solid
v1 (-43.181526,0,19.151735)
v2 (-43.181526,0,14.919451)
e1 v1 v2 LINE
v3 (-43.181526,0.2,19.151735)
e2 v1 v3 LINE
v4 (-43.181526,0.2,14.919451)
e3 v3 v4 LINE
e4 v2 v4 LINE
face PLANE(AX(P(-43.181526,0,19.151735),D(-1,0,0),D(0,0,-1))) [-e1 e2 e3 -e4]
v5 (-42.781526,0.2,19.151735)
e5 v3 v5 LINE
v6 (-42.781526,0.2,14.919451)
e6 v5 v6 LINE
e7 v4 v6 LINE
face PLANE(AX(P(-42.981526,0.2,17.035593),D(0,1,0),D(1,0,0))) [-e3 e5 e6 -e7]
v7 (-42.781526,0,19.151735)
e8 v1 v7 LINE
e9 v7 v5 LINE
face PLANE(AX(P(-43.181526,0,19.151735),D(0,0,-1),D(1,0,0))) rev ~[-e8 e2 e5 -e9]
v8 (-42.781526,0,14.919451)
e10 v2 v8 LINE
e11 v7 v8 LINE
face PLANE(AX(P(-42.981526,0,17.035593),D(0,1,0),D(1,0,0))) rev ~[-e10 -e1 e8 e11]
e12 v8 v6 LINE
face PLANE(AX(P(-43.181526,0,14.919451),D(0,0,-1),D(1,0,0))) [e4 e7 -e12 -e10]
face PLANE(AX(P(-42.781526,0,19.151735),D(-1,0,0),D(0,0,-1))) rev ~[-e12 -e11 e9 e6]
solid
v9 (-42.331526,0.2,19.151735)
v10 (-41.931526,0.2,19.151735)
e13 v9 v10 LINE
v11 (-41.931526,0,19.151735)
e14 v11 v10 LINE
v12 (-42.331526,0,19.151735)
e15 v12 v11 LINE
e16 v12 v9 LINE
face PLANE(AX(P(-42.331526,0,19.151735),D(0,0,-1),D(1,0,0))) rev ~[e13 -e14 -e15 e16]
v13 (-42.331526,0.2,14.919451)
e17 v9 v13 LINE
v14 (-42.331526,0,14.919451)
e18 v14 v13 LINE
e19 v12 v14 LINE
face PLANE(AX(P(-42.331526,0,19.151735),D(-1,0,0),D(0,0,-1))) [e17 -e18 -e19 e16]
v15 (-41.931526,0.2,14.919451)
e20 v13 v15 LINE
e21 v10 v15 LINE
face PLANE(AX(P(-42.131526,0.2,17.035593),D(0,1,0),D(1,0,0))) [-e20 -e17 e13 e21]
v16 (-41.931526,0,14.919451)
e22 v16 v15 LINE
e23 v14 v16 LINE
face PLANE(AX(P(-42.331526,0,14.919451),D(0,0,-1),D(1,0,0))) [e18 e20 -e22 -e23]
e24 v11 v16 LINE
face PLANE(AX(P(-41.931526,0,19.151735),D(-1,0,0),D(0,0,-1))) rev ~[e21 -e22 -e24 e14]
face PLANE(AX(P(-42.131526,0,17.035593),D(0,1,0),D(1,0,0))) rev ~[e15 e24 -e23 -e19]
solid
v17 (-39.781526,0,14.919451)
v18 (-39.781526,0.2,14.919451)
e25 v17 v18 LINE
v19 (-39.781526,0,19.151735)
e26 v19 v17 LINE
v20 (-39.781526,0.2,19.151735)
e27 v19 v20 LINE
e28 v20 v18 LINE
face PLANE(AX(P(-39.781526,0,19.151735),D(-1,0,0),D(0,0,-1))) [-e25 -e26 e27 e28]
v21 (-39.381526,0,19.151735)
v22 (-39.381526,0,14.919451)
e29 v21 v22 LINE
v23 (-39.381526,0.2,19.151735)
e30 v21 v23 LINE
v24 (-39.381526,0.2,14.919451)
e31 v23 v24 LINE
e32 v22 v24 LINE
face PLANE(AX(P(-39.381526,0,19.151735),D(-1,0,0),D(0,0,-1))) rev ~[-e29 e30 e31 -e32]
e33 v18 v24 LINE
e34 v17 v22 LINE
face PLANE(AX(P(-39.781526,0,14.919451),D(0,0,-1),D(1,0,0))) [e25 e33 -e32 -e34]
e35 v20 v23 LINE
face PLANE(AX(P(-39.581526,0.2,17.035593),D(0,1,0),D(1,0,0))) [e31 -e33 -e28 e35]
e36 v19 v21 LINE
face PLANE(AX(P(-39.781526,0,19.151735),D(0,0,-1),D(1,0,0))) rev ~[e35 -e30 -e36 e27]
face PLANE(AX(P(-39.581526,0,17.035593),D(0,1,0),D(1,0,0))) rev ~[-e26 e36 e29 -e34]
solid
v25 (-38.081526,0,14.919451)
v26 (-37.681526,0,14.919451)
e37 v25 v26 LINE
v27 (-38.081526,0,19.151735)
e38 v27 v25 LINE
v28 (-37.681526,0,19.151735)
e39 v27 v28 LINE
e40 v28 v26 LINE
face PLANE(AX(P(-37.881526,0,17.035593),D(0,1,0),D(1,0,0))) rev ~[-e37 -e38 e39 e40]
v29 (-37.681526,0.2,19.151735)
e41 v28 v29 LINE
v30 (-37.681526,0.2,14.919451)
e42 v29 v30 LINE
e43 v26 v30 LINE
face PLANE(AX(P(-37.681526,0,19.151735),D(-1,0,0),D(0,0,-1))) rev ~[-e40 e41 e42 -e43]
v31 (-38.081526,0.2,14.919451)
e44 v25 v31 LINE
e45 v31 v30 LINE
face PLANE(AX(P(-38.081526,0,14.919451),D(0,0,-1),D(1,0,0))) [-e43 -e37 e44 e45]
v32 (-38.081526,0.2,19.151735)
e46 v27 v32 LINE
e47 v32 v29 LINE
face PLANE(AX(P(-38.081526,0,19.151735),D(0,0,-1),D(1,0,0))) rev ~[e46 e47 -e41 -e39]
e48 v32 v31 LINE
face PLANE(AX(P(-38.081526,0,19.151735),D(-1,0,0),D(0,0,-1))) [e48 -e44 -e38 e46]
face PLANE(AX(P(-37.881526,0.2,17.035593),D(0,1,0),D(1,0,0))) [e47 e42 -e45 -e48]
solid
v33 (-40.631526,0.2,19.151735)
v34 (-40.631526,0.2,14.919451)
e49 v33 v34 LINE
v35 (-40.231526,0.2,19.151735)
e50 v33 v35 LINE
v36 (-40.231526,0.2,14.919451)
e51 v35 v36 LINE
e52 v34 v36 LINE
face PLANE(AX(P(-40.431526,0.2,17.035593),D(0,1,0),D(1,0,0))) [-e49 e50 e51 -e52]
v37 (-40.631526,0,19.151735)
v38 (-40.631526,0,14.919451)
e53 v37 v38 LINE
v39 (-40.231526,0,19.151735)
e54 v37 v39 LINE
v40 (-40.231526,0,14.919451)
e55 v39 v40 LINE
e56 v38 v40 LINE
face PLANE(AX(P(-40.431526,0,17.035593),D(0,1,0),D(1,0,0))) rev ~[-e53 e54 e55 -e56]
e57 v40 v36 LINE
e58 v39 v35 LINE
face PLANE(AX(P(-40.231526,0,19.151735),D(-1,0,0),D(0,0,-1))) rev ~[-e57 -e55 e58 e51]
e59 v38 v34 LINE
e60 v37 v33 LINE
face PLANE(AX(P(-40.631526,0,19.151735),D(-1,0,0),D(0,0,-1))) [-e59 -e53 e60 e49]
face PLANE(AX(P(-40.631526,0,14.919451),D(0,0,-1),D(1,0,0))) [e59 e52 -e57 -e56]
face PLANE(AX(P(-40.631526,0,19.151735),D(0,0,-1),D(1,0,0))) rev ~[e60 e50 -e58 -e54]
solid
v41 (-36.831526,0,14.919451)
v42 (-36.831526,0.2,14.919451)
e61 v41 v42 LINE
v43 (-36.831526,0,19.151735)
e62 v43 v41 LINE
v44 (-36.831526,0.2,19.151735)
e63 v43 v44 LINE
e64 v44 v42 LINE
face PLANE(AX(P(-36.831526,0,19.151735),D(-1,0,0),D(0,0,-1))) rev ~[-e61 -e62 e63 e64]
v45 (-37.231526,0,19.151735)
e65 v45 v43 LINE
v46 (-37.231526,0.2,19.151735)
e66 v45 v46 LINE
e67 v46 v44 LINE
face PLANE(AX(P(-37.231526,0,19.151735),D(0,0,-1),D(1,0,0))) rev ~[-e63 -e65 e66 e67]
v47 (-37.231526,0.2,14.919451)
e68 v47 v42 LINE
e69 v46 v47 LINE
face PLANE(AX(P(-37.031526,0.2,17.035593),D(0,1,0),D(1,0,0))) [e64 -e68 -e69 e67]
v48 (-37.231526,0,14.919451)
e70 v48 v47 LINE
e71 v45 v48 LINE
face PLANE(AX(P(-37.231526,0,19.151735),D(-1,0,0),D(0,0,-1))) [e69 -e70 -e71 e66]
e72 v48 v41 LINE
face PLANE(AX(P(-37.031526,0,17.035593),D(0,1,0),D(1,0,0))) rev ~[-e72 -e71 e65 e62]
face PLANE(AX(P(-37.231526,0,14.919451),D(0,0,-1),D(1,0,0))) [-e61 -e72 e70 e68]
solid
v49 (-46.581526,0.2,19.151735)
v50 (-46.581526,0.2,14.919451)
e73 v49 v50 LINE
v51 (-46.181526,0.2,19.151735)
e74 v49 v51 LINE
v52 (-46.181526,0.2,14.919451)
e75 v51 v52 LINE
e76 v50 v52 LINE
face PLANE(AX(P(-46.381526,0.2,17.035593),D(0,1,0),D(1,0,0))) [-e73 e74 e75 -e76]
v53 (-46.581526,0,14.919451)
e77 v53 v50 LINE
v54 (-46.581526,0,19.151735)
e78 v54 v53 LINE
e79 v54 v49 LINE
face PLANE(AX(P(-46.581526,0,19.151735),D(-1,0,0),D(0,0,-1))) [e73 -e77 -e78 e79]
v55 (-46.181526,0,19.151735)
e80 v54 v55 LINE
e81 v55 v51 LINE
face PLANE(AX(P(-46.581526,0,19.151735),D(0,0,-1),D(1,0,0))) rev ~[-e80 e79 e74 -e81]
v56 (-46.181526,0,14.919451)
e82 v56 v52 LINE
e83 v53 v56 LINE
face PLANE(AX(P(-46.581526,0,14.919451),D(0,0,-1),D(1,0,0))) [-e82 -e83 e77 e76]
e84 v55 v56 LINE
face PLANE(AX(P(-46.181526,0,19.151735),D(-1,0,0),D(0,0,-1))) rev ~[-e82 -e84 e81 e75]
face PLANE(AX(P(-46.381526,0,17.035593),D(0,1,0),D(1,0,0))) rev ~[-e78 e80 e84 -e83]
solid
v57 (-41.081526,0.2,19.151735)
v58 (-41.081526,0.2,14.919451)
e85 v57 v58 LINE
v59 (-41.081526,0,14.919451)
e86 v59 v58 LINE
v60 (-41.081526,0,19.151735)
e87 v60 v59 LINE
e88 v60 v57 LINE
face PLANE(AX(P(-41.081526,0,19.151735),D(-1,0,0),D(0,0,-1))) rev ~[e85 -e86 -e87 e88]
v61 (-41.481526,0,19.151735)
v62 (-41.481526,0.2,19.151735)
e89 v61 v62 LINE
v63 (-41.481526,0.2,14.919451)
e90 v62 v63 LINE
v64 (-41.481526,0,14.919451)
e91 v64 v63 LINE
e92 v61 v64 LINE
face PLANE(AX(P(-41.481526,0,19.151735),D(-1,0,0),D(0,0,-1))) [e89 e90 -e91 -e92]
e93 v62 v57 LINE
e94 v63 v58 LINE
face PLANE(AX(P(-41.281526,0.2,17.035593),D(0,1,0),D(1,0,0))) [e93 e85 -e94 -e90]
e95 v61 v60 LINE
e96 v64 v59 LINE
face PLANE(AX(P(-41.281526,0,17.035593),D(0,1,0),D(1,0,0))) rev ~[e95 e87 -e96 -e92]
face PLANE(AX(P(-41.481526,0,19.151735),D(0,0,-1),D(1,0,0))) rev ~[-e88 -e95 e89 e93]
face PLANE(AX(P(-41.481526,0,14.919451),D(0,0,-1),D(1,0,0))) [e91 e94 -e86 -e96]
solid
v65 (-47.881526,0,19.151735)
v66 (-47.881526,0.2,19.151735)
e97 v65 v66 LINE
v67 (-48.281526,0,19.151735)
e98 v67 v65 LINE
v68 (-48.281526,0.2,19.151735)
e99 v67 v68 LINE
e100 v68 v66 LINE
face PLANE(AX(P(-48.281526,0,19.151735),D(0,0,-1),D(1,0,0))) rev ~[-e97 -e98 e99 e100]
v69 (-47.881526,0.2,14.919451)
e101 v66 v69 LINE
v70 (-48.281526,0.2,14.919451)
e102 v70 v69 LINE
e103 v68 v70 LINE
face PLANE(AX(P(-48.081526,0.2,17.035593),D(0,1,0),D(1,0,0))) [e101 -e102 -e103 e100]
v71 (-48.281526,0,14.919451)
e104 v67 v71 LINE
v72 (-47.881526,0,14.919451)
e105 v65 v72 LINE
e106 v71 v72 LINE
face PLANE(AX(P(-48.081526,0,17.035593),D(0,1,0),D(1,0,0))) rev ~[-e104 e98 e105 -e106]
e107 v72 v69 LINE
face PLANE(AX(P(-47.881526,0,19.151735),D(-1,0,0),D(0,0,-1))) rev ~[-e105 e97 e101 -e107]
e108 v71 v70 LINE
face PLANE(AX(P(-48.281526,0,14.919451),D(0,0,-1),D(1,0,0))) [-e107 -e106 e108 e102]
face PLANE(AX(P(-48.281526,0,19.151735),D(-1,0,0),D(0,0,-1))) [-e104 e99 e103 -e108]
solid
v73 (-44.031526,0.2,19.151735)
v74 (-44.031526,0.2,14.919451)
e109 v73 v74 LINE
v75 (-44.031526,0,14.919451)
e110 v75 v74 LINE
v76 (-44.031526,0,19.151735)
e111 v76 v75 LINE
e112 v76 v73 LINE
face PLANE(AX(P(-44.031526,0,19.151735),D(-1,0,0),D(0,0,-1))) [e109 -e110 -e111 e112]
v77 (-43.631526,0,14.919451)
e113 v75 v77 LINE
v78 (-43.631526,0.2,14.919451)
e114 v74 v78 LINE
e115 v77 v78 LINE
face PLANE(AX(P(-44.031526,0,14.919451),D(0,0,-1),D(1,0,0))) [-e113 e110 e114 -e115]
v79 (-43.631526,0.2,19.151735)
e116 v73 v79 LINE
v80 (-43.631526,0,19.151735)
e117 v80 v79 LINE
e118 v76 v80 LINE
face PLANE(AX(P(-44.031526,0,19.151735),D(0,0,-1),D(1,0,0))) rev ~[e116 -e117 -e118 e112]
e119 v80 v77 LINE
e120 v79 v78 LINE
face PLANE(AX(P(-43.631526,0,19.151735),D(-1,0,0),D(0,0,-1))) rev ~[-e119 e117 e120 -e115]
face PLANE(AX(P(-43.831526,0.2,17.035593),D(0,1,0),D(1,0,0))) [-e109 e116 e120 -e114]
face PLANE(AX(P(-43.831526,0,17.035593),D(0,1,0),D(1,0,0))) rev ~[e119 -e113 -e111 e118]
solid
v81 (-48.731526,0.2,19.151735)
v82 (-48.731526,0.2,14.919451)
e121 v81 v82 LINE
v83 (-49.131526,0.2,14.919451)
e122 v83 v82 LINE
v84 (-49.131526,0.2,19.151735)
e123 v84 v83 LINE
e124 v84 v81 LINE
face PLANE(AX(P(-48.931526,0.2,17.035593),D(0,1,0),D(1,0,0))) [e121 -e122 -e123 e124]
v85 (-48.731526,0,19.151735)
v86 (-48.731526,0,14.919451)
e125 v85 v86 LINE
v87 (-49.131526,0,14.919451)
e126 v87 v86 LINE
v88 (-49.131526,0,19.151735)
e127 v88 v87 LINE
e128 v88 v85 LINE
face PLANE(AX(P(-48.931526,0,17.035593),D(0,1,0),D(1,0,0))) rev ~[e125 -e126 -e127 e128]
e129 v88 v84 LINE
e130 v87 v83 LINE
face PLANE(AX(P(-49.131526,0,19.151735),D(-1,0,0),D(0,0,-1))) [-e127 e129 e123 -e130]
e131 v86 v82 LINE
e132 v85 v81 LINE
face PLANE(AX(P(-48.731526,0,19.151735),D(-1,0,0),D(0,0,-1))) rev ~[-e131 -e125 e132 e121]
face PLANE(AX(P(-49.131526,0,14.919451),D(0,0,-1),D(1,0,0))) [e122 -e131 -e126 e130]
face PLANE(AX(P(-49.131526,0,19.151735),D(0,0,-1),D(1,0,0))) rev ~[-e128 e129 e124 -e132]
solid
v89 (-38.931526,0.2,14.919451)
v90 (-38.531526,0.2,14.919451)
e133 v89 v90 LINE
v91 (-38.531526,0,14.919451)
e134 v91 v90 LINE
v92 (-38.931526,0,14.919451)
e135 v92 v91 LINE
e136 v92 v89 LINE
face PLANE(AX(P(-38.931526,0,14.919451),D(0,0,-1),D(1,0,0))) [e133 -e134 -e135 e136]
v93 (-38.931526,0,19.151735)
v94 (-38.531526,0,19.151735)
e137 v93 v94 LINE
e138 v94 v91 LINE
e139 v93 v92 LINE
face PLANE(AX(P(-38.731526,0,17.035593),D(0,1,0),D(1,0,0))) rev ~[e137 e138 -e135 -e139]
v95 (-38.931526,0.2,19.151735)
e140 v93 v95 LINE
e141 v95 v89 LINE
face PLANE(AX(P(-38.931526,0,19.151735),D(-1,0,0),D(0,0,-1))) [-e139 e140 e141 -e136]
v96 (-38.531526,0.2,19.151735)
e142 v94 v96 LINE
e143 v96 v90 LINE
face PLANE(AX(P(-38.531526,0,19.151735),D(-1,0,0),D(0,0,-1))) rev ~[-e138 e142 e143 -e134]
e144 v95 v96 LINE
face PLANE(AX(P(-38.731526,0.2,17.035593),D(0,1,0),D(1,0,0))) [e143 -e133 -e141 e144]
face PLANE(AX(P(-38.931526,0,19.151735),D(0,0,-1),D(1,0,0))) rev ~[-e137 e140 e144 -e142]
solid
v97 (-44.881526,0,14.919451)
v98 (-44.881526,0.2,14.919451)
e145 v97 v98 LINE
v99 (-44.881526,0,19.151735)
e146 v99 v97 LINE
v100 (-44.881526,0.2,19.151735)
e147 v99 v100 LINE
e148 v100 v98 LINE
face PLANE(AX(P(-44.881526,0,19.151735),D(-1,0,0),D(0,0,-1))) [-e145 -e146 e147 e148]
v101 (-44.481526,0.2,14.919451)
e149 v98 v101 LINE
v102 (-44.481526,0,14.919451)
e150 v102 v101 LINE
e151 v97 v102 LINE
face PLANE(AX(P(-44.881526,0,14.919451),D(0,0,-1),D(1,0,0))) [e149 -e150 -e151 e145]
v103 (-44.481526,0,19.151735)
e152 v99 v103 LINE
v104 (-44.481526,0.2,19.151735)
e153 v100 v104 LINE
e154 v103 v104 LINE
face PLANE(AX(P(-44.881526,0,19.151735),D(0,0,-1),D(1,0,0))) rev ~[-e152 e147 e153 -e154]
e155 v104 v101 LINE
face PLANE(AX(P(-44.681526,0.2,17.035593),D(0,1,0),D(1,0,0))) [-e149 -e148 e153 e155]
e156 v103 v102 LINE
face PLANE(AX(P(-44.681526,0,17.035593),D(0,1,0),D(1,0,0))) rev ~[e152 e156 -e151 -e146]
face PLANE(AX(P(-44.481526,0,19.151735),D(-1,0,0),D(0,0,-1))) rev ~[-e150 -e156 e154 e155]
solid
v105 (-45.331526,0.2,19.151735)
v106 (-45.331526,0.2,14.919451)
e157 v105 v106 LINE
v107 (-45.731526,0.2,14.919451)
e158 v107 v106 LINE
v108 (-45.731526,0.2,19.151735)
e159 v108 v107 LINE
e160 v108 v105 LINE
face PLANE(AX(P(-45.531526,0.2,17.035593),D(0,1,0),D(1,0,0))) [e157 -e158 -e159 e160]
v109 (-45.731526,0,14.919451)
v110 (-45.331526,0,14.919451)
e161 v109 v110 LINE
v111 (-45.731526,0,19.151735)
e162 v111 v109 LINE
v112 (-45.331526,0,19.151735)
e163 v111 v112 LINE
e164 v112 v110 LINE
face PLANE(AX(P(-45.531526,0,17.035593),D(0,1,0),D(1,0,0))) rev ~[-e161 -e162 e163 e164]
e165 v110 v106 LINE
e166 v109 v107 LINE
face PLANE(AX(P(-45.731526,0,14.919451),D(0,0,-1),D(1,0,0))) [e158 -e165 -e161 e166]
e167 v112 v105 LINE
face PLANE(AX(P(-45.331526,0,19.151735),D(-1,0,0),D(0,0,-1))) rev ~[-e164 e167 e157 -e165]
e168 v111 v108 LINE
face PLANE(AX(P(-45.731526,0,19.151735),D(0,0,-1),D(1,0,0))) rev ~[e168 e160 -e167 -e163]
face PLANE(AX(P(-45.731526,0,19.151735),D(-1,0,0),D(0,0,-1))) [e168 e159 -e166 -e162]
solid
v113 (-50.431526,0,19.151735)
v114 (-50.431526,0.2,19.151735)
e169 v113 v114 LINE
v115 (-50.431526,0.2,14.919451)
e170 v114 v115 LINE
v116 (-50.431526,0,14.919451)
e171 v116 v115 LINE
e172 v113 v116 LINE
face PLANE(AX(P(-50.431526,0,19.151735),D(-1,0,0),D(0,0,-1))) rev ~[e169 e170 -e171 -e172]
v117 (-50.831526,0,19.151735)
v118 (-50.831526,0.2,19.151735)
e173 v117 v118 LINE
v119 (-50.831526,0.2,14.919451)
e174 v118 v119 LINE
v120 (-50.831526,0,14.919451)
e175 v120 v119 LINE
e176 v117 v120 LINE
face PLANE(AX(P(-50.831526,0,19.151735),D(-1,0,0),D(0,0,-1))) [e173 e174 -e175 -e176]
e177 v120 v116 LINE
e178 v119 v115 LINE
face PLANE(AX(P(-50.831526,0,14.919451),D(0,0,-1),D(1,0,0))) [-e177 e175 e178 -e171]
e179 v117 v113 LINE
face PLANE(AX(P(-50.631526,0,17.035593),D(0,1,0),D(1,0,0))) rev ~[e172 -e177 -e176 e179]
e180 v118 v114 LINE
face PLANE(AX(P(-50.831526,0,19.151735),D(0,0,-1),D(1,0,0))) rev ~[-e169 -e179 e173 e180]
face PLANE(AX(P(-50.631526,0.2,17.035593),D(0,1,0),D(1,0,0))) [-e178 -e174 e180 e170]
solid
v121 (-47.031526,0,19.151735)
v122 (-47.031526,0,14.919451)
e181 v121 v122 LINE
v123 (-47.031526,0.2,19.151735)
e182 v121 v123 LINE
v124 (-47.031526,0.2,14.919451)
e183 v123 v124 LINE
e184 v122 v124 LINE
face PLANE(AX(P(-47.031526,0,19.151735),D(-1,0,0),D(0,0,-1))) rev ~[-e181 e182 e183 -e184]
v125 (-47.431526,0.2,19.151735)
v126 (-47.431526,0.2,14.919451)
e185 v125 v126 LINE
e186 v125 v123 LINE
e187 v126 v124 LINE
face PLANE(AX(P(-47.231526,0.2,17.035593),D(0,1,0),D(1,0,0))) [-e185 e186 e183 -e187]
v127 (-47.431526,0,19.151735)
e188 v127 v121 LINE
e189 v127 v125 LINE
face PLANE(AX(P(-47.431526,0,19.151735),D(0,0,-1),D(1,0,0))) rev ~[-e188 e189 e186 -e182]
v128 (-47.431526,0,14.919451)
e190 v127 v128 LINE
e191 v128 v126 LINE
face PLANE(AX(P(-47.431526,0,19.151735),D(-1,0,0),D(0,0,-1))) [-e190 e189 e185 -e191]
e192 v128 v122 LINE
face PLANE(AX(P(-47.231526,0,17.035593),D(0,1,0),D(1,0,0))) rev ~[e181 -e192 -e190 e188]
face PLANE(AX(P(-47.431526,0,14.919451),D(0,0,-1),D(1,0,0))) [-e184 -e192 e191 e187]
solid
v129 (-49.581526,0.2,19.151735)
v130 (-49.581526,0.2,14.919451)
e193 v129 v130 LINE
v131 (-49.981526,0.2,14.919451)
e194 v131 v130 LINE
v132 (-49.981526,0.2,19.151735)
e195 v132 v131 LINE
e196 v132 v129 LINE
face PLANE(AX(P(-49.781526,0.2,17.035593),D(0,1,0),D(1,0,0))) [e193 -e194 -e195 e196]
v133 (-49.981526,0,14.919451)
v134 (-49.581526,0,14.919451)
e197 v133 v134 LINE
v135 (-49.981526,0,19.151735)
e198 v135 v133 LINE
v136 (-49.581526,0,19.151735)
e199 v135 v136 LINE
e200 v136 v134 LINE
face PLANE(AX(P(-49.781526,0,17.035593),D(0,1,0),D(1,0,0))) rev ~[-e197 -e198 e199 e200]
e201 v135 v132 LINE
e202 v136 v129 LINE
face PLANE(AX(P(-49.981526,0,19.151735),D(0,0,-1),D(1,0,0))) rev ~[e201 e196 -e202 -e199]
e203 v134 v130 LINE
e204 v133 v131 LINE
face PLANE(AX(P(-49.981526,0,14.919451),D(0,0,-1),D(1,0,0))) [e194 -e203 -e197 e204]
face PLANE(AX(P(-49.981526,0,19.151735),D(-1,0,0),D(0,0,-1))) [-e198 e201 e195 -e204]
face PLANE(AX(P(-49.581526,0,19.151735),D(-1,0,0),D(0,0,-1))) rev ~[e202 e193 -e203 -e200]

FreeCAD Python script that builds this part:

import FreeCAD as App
import Part
import Sketcher
from FreeCAD import Vector
Q = App.Units.Quantity

doc = App.newDocument("Part")
body = doc.addObject("PartDesign::Body", "Body")

# Sketch on XZ plane
sketch1 = doc.addObject("Sketcher::SketchObject", "Sketch")
body.addObject(sketch1)
sketch1.AttachmentSupport = (doc.XZ_Plane, [""])
sketch1.MapMode = "FlatFace"
sketch1.addGeometry([
    Part.LineSegment(Vector(-49.98, 14.92, 0), Vector(-49.98, 19.15, 0)),
    Part.LineSegment(Vector(-49.98, 19.15, 0), Vector(-49.58, 19.15, 0)),
    Part.LineSegment(Vector(-49.58, 19.15, 0), Vector(-49.58, 14.92, 0)),
    Part.LineSegment(Vector(-49.58, 14.92, 0), Vector(-49.98, 14.92, 0)),
], False)
sketch1.addConstraint([
    Sketcher.Constraint("Coincident", 0, 2, 1, 1),
    Sketcher.Constraint("Coincident", 1, 2, 2, 1),
    Sketcher.Constraint("Coincident", 2, 2, 3, 1),
    Sketcher.Constraint("Coincident", 3, 2, 0, 1),
    Sketcher.Constraint("Vertical", 0),
    Sketcher.Constraint("Horizontal", 1),
    Sketcher.Constraint("Vertical", 2),
    Sketcher.Constraint("Horizontal", 3),
    Sketcher.Constraint("DistanceX", 1, 1, 1, 2, Q("0.4 mm")),
    Sketcher.Constraint("DistanceY", 0, 1, 0, 2, Q("4.232283 mm")),
    Sketcher.Constraint("DistanceY", -1, 1, 2, 2, Q("14.919451 mm")),
    Sketcher.Constraint("DistanceX", 0, 2, -1, 1, Q("49.981526 mm")),
])
pad1 = doc.addObject("PartDesign::Pad", "Pad")
body.addObject(pad1)
pad1.Profile = sketch1
pad1.Length = 0.2
pad1.Reversed = True
body2 = doc.addObject("PartDesign::Body", "Body001")

# Sketch on XZ plane
sketch2 = doc.addObject("Sketcher::SketchObject", "Sketch001")
body2.addObject(sketch2)
sketch2.AttachmentSupport = (doc.getObject("XZ_Plane001"), [""])
sketch2.MapMode = "FlatFace"
sketch2.addGeometry([
    Part.LineSegment(Vector(-50.83, 14.92, 0), Vector(-50.83, 19.15, 0)),
    Part.LineSegment(Vector(-50.83, 19.15, 0), Vector(-50.43, 19.15, 0)),
    Part.LineSegment(Vector(-50.43, 19.15, 0), Vector(-50.43, 14.92, 0)),
    Part.LineSegment(Vector(-50.43, 14.92, 0), Vector(-50.83, 14.92, 0)),
], False)
sketch2.addConstraint([
    Sketcher.Constraint("Coincident", 0, 2, 1, 1),
    Sketcher.Constraint("Coincident", 1, 2, 2, 1),
    Sketcher.Constraint("Coincident", 2, 2, 3, 1),
    Sketcher.Constraint("Coincident", 3, 2, 0, 1),
    Sketcher.Constraint("Vertical", 0),
    Sketcher.Constraint("Horizontal", 1),
    Sketcher.Constraint("Vertical", 2),
    Sketcher.Constraint("Horizontal", 3),
    Sketcher.Constraint("DistanceX", 1, 1, 1, 2, Q("0.4 mm")),
    Sketcher.Constraint("DistanceY", 0, 1, 0, 2, Q("4.232283 mm")),
    Sketcher.Constraint("DistanceY", -1, 1, 2, 2, Q("14.919451 mm")),
    Sketcher.Constraint("DistanceX", 0, 2, -1, 1, Q("50.831526 mm")),
])
pad2 = doc.addObject("PartDesign::Pad", "Pad001")
body2.addObject(pad2)
pad2.Profile = sketch2
pad2.Length = 0.2
pad2.Reversed = True
body3 = doc.addObject("PartDesign::Body", "Body002")

# Sketch on XZ plane
sketch3 = doc.addObject("Sketcher::SketchObject", "Sketch002")
body3.addObject(sketch3)
sketch3.AttachmentSupport = (doc.getObject("XZ_Plane002"), [""])
sketch3.MapMode = "FlatFace"
sketch3.addGeometry([
    Part.LineSegment(Vector(-49.13, 14.92, 0), Vector(-49.13, 19.15, 0)),
    Part.LineSegment(Vector(-49.13, 19.15, 0), Vector(-48.73, 19.15, 0)),
    Part.LineSegment(Vector(-48.73, 19.15, 0), Vector(-48.73, 14.92, 0)),
    Part.LineSegment(Vector(-48.73, 14.92, 0), Vector(-49.13, 14.92, 0)),
], False)
sketch3.addConstraint([
    Sketcher.Constraint("Coincident", 0, 2, 1, 1),
    Sketcher.Constraint("Coincident", 1, 2, 2, 1),
    Sketcher.Constraint("Coincident", 2, 2, 3, 1),
    Sketcher.Constraint("Coincident", 3, 2, 0, 1),
    Sketcher.Constraint("Vertical", 0),
    Sketcher.Constraint("Horizontal", 1),
    Sketcher.Constraint("Vertical", 2),
    Sketcher.Constraint("Horizontal", 3),
    Sketcher.Constraint("DistanceX", 1, 1, 1, 2, Q("0.4 mm")),
    Sketcher.Constraint("DistanceY", 0, 1, 0, 2, Q("4.232283 mm")),
    Sketcher.Constraint("DistanceY", -1, 1, 2, 2, Q("14.919451 mm")),
    Sketcher.Constraint("DistanceX", 0, 2, -1, 1, Q("49.131526 mm")),
])
pad3 = doc.addObject("PartDesign::Pad", "Pad002")
body3.addObject(pad3)
pad3.Profile = sketch3
pad3.Length = 0.2
pad3.Reversed = True
body4 = doc.addObject("PartDesign::Body", "Body003")

# Sketch on XZ plane
sketch4 = doc.addObject("Sketcher::SketchObject", "Sketch003")
body4.addObject(sketch4)
sketch4.AttachmentSupport = (doc.getObject("XZ_Plane003"), [""])
sketch4.MapMode = "FlatFace"
sketch4.addGeometry([
    Part.LineSegment(Vector(-48.28, 14.92, 0), Vector(-48.28, 19.15, 0)),
    Part.LineSegment(Vector(-48.28, 19.15, 0), Vector(-47.88, 19.15, 0)),
    Part.LineSegment(Vector(-47.88, 19.15, 0), Vector(-47.88, 14.92, 0)),
    Part.LineSegment(Vector(-47.88, 14.92, 0), Vector(-48.28, 14.92, 0)),
], False)
sketch4.addConstraint([
    Sketcher.Constraint("Coincident", 0, 2, 1, 1),
    Sketcher.Constraint("Coincident", 1, 2, 2, 1),
    Sketcher.Constraint("Coincident", 2, 2, 3, 1),
    Sketcher.Constraint("Coincident", 3, 2, 0, 1),
    Sketcher.Constraint("Vertical", 0),
    Sketcher.Constraint("Horizontal", 1),
    Sketcher.Constraint("Vertical", 2),
    Sketcher.Constraint("Horizontal", 3),
    Sketcher.Constraint("DistanceX", 1, 1, 1, 2, Q("0.4 mm")),
    Sketcher.Constraint("DistanceY", 0, 1, 0, 2, Q("4.232283 mm")),
    Sketcher.Constraint("DistanceY", -1, 1, 2, 2, Q("14.919451 mm")),
    Sketcher.Constraint("DistanceX", 0, 2, -1, 1, Q("48.281526 mm")),
])
pad4 = doc.addObject("PartDesign::Pad", "Pad003")
body4.addObject(pad4)
pad4.Profile = sketch4
pad4.Length = 0.2
pad4.Reversed = True
body5 = doc.addObject("PartDesign::Body", "Body004")

# Sketch on XZ plane
sketch5 = doc.addObject("Sketcher::SketchObject", "Sketch004")
body5.addObject(sketch5)
sketch5.AttachmentSupport = (doc.getObject("XZ_Plane004"), [""])
sketch5.MapMode = "FlatFace"
sketch5.addGeometry([
    Part.LineSegment(Vector(-47.43, 14.92, 0), Vector(-47.43, 19.15, 0)),
    Part.LineSegment(Vector(-47.43, 19.15, 0), Vector(-47.03, 19.15, 0)),
    Part.LineSegment(Vector(-47.03, 19.15, 0), Vector(-47.03, 14.92, 0)),
    Part.LineSegment(Vector(-47.03, 14.92, 0), Vector(-47.43, 14.92, 0)),
], False)
sketch5.addConstraint([
    Sketcher.Constraint("Coincident", 0, 2, 1, 1),
    Sketcher.Constraint("Coincident", 1, 2, 2, 1),
    Sketcher.Constraint("Coincident", 2, 2, 3, 1),
    Sketcher.Constraint("Coincident", 3, 2, 0, 1),
    Sketcher.Constraint("Vertical", 0),
    Sketcher.Constraint("Horizontal", 1),
    Sketcher.Constraint("Vertical", 2),
    Sketcher.Constraint("Horizontal", 3),
    Sketcher.Constraint("DistanceX", 1, 1, 1, 2, Q("0.4 mm")),
    Sketcher.Constraint("DistanceY", 0, 1, 0, 2, Q("4.232283 mm")),
    Sketcher.Constraint("DistanceY", -1, 1, 2, 2, Q("14.919451 mm")),
    Sketcher.Constraint("DistanceX", 0, 2, -1, 1, Q("47.431526 mm")),
])
pad5 = doc.addObject("PartDesign::Pad", "Pad004")
body5.addObject(pad5)
pad5.Profile = sketch5
pad5.Length = 0.2
pad5.Reversed = True
body6 = doc.addObject("PartDesign::Body", "Body005")

# Sketch on XZ plane
sketch6 = doc.addObject("Sketcher::SketchObject", "Sketch005")
body6.addObject(sketch6)
sketch6.AttachmentSupport = (doc.getObject("XZ_Plane005"), [""])
sketch6.MapMode = "FlatFace"
sketch6.addGeometry([
    Part.LineSegment(Vector(-46.58, 14.92, 0), Vector(-46.58, 19.15, 0)),
    Part.LineSegment(Vector(-46.58, 19.15, 0), Vector(-46.18, 19.15, 0)),
    Part.LineSegment(Vector(-46.18, 19.15, 0), Vector(-46.18, 14.92, 0)),
    Part.LineSegment(Vector(-46.18, 14.92, 0), Vector(-46.58, 14.92, 0)),
], False)
sketch6.addConstraint([
    Sketcher.Constraint("Coincident", 0, 2, 1, 1),
    Sketcher.Constraint("Coincident", 1, 2, 2, 1),
    Sketcher.Constraint("Coincident", 2, 2, 3, 1),
    Sketcher.Constraint("Coincident", 3, 2, 0, 1),
    Sketcher.Constraint("Vertical", 0),
    Sketcher.Constraint("Horizontal", 1),
    Sketcher.Constraint("Vertical", 2),
    Sketcher.Constraint("Horizontal", 3),
    Sketcher.Constraint("DistanceX", 1, 1, 1, 2, Q("0.4 mm")),
    Sketcher.Constraint("DistanceY", 0, 1, 0, 2, Q("4.232283 mm")),
    Sketcher.Constraint("DistanceY", -1, 1, 2, 2, Q("14.919451 mm")),
    Sketcher.Constraint("DistanceX", 0, 2, -1, 1, Q("46.581526 mm")),
])
pad6 = doc.addObject("PartDesign::Pad", "Pad005")
body6.addObject(pad6)
pad6.Profile = sketch6
pad6.Length = 0.2
pad6.Reversed = True
body7 = doc.addObject("PartDesign::Body", "Body006")

# Sketch on XZ plane
sketch7 = doc.addObject("Sketcher::SketchObject", "Sketch006")
body7.addObject(sketch7)
sketch7.AttachmentSupport = (doc.getObject("XZ_Plane006"), [""])
sketch7.MapMode = "FlatFace"
sketch7.addGeometry([
    Part.LineSegment(Vector(-45.73, 14.92, 0), Vector(-45.73, 19.15, 0)),
    Part.LineSegment(Vector(-45.73, 19.15, 0), Vector(-45.33, 19.15, 0)),
    Part.LineSegment(Vector(-45.33, 19.15, 0), Vector(-45.33, 14.92, 0)),
    Part.LineSegment(Vector(-45.33, 14.92, 0), Vector(-45.73, 14.92, 0)),
], False)
sketch7.addConstraint([
    Sketcher.Constraint("Coincident", 0, 2, 1, 1),
    Sketcher.Constraint("Coincident", 1, 2, 2, 1),
    Sketcher.Constraint("Coincident", 2, 2, 3, 1),
    Sketcher.Constraint("Coincident", 3, 2, 0, 1),
    Sketcher.Constraint("Vertical", 0),
    Sketcher.Constraint("Horizontal", 1),
    Sketcher.Constraint("Vertical", 2),
    Sketcher.Constraint("Horizontal", 3),
    Sketcher.Constraint("DistanceX", 1, 1, 1, 2, Q("0.4 mm")),
    Sketcher.Constraint("DistanceY", 0, 1, 0, 2, Q("4.232283 mm")),
    Sketcher.Constraint("DistanceY", -1, 1, 2, 2, Q("14.919451 mm")),
    Sketcher.Constraint("DistanceX", 0, 2, -1, 1, Q("45.731526 mm")),
])
pad7 = doc.addObject("PartDesign::Pad", "Pad006")
body7.addObject(pad7)
pad7.Profile = sketch7
pad7.Length = 0.2
pad7.Reversed = True
body8 = doc.addObject("PartDesign::Body", "Body007")

# Sketch on XZ plane
sketch8 = doc.addObject("Sketcher::SketchObject", "Sketch007")
body8.addObject(sketch8)
sketch8.AttachmentSupport = (doc.getObject("XZ_Plane007"), [""])
sketch8.MapMode = "FlatFace"
sketch8.addGeometry([
    Part.LineSegment(Vector(-44.88, 14.92, 0), Vector(-44.88, 19.15, 0)),
    Part.LineSegment(Vector(-44.88, 19.15, 0), Vector(-44.48, 19.15, 0)),
    Part.LineSegment(Vector(-44.48, 19.15, 0), Vector(-44.48, 14.92, 0)),
    Part.LineSegment(Vector(-44.48, 14.92, 0), Vector(-44.88, 14.92, 0)),
], False)
sketch8.addConstraint([
    Sketcher.Constraint("Coincident", 0, 2, 1, 1),
    Sketcher.Constraint("Coincident", 1, 2, 2, 1),
    Sketcher.Constraint("Coincident", 2, 2, 3, 1),
    Sketcher.Constraint("Coincident", 3, 2, 0, 1),
    Sketcher.Constraint("Vertical", 0),
    Sketcher.Constraint("Horizontal", 1),
    Sketcher.Constraint("Vertical", 2),
    Sketcher.Constraint("Horizontal", 3),
    Sketcher.Constraint("DistanceX", 1, 1, 1, 2, Q("0.4 mm")),
    Sketcher.Constraint("DistanceY", 0, 1, 0, 2, Q("4.232283 mm")),
    Sketcher.Constraint("DistanceY", -1, 1, 2, 2, Q("14.919451 mm")),
    Sketcher.Constraint("DistanceX", 0, 2, -1, 1, Q("44.881526 mm")),
])
pad8 = doc.addObject("PartDesign::Pad", "Pad007")
body8.addObject(pad8)
pad8.Profile = sketch8
pad8.Length = 0.2
pad8.Reversed = True
body9 = doc.addObject("PartDesign::Body", "Body008")

# Sketch on XZ plane
sketch9 = doc.addObject("Sketcher::SketchObject", "Sketch008")
body9.addObject(sketch9)
sketch9.AttachmentSupport = (doc.getObject("XZ_Plane008"), [""])
sketch9.MapMode = "FlatFace"
sketch9.addGeometry([
    Part.LineSegment(Vector(-44.03, 14.92, 0), Vector(-44.03, 19.15, 0)),
    Part.LineSegment(Vector(-44.03, 19.15, 0), Vector(-43.63, 19.15, 0)),
    Part.LineSegment(Vector(-43.63, 19.15, 0), Vector(-43.63, 14.92, 0)),
    Part.LineSegment(Vector(-43.63, 14.92, 0), Vector(-44.03, 14.92, 0)),
], False)
sketch9.addConstraint([
    Sketcher.Constraint("Coincident", 0, 2, 1, 1),
    Sketcher.Constraint("Coincident", 1, 2, 2, 1),
    Sketcher.Constraint("Coincident", 2, 2, 3, 1),
    Sketcher.Constraint("Coincident", 3, 2, 0, 1),
    Sketcher.Constraint("Vertical", 0),
    Sketcher.Constraint("Horizontal", 1),
    Sketcher.Constraint("Vertical", 2),
    Sketcher.Constraint("Horizontal", 3),
    Sketcher.Constraint("DistanceX", 1, 1, 1, 2, Q("0.4 mm")),
    Sketcher.Constraint("DistanceY", 0, 1, 0, 2, Q("4.232283 mm")),
    Sketcher.Constraint("DistanceY", -1, 1, 2, 2, Q("14.919451 mm")),
    Sketcher.Constraint("DistanceX", 0, 2, -1, 1, Q("44.031526 mm")),
])
pad9 = doc.addObject("PartDesign::Pad", "Pad008")
body9.addObject(pad9)
pad9.Profile = sketch9
pad9.Length = 0.2
pad9.Reversed = True
body10 = doc.addObject("PartDesign::Body", "Body009")

# Sketch on XZ plane
sketch10 = doc.addObject("Sketcher::SketchObject", "Sketch009")
body10.addObject(sketch10)
sketch10.AttachmentSupport = (doc.getObject("XZ_Plane009"), [""])
sketch10.MapMode = "FlatFace"
sketch10.addGeometry([
    Part.LineSegment(Vector(-43.18, 14.92, 0), Vector(-43.18, 19.15, 0)),
    Part.LineSegment(Vector(-43.18, 19.15, 0), Vector(-42.78, 19.15, 0)),
    Part.LineSegment(Vector(-42.78, 19.15, 0), Vector(-42.78, 14.92, 0)),
    Part.LineSegment(Vector(-42.78, 14.92, 0), Vector(-43.18, 14.92, 0)),
], False)
sketch10.addConstraint([
    Sketcher.Constraint("Coincident", 0, 2, 1, 1),
    Sketcher.Constraint("Coincident", 1, 2, 2, 1),
    Sketcher.Constraint("Coincident", 2, 2, 3, 1),
    Sketcher.Constraint("Coincident", 3, 2, 0, 1),
    Sketcher.Constraint("Vertical", 0),
    Sketcher.Constraint("Horizontal", 1),
    Sketcher.Constraint("Vertical", 2),
    Sketcher.Constraint("Horizontal", 3),
    Sketcher.Constraint("DistanceX", 1, 1, 1, 2, Q("0.4 mm")),
    Sketcher.Constraint("DistanceY", 0, 1, 0, 2, Q("4.232283 mm")),
    Sketcher.Constraint("DistanceY", -1, 1, 2, 2, Q("14.919451 mm")),
    Sketcher.Constraint("DistanceX", 0, 2, -1, 1, Q("43.181526 mm")),
])
pad10 = doc.addObject("PartDesign::Pad", "Pad009")
body10.addObject(pad10)
pad10.Profile = sketch10
pad10.Length = 0.2
pad10.Reversed = True
body11 = doc.addObject("PartDesign::Body", "Body010")

# Sketch on XZ plane
sketch11 = doc.addObject("Sketcher::SketchObject", "Sketch010")
body11.addObject(sketch11)
sketch11.AttachmentSupport = (doc.getObject("XZ_Plane010"), [""])
sketch11.MapMode = "FlatFace"
sketch11.addGeometry([
    Part.LineSegment(Vector(-42.33, 14.92, 0), Vector(-42.33, 19.15, 0)),
    Part.LineSegment(Vector(-42.33, 19.15, 0), Vector(-41.93, 19.15, 0)),
    Part.LineSegment(Vector(-41.93, 19.15, 0), Vector(-41.93, 14.92, 0)),
    Part.LineSegment(Vector(-41.93, 14.92, 0), Vector(-42.33, 14.92, 0)),
], False)
sketch11.addConstraint([
    Sketcher.Constraint("Coincident", 0, 2, 1, 1),
    Sketcher.Constraint("Coincident", 1, 2, 2, 1),
    Sketcher.Constraint("Coincident", 2, 2, 3, 1),
    Sketcher.Constraint("Coincident", 3, 2, 0, 1),
    Sketcher.Constraint("Vertical", 0),
    Sketcher.Constraint("Horizontal", 1),
    Sketcher.Constraint("Vertical", 2),
    Sketcher.Constraint("Horizontal", 3),
    Sketcher.Constraint("DistanceX", 1, 1, 1, 2, Q("0.4 mm")),
    Sketcher.Constraint("DistanceY", 0, 1, 0, 2, Q("4.232283 mm")),
    Sketcher.Constraint("DistanceY", -1, 1, 2, 2, Q("14.919451 mm")),
    Sketcher.Constraint("DistanceX", 0, 2, -1, 1, Q("42.331526 mm")),
])
pad11 = doc.addObject("PartDesign::Pad", "Pad010")
body11.addObject(pad11)
pad11.Profile = sketch11
pad11.Length = 0.2
pad11.Reversed = True
body12 = doc.addObject("PartDesign::Body", "Body011")

# Sketch on XZ plane
sketch12 = doc.addObject("Sketcher::SketchObject", "Sketch011")
body12.addObject(sketch12)
sketch12.AttachmentSupport = (doc.getObject("XZ_Plane011"), [""])
sketch12.MapMode = "FlatFace"
sketch12.addGeometry([
    Part.LineSegment(Vector(-41.48, 14.92, 0), Vector(-41.48, 19.15, 0)),
    Part.LineSegment(Vector(-41.48, 19.15, 0), Vector(-41.08, 19.15, 0)),
    Part.LineSegment(Vector(-41.08, 19.15, 0), Vector(-41.08, 14.92, 0)),
    Part.LineSegment(Vector(-41.08, 14.92, 0), Vector(-41.48, 14.92, 0)),
], False)
sketch12.addConstraint([
    Sketcher.Constraint("Coincident", 0, 2, 1, 1),
    Sketcher.Constraint("Coincident", 1, 2, 2, 1),
    Sketcher.Constraint("Coincident", 2, 2, 3, 1),
    Sketcher.Constraint("Coincident", 3, 2, 0, 1),
    Sketcher.Constraint("Vertical", 0),
    Sketcher.Constraint("Horizontal", 1),
    Sketcher.Constraint("Vertical", 2),
    Sketcher.Constraint("Horizontal", 3),
    Sketcher.Constraint("DistanceX", 1, 1, 1, 2, Q("0.4 mm")),
    Sketcher.Constraint("DistanceY", 0, 1, 0, 2, Q("4.232283 mm")),
    Sketcher.Constraint("DistanceY", -1, 1, 2, 2, Q("14.919451 mm")),
    Sketcher.Constraint("DistanceX", 0, 2, -1, 1, Q("41.481526 mm")),
])
pad12 = doc.addObject("PartDesign::Pad", "Pad011")
body12.addObject(pad12)
pad12.Profile = sketch12
pad12.Length = 0.2
pad12.Reversed = True
body13 = doc.addObject("PartDesign::Body", "Body012")

# Sketch on XZ plane
sketch13 = doc.addObject("Sketcher::SketchObject", "Sketch012")
body13.addObject(sketch13)
sketch13.AttachmentSupport = (doc.getObject("XZ_Plane012"), [""])
sketch13.MapMode = "FlatFace"
sketch13.addGeometry([
    Part.LineSegment(Vector(-40.63, 14.92, 0), Vector(-40.63, 19.15, 0)),
    Part.LineSegment(Vector(-40.63, 19.15, 0), Vector(-40.23, 19.15, 0)),
    Part.LineSegment(Vector(-40.23, 19.15, 0), Vector(-40.23, 14.92, 0)),
    Part.LineSegment(Vector(-40.23, 14.92, 0), Vector(-40.63, 14.92, 0)),
], False)
sketch13.addConstraint([
    Sketcher.Constraint("Coincident", 0, 2, 1, 1),
    Sketcher.Constraint("Coincident", 1, 2, 2, 1),
    Sketcher.Constraint("Coincident", 2, 2, 3, 1),
    Sketcher.Constraint("Coincident", 3, 2, 0, 1),
    Sketcher.Constraint("Vertical", 0),
    Sketcher.Constraint("Horizontal", 1),
    Sketcher.Constraint("Vertical", 2),
    Sketcher.Constraint("Horizontal", 3),
    Sketcher.Constraint("DistanceX", 1, 1, 1, 2, Q("0.4 mm")),
    Sketcher.Constraint("DistanceY", 0, 1, 0, 2, Q("4.232283 mm")),
    Sketcher.Constraint("DistanceY", -1, 1, 2, 2, Q("14.919451 mm")),
    Sketcher.Constraint("DistanceX", 0, 2, -1, 1, Q("40.631526 mm")),
])
pad13 = doc.addObject("PartDesign::Pad", "Pad012")
body13.addObject(pad13)
pad13.Profile = sketch13
pad13.Length = 0.2
pad13.Reversed = True
body14 = doc.addObject("PartDesign::Body", "Body013")

# Sketch on XZ plane
sketch14 = doc.addObject("Sketcher::SketchObject", "Sketch013")
body14.addObject(sketch14)
sketch14.AttachmentSupport = (doc.getObject("XZ_Plane013"), [""])
sketch14.MapMode = "FlatFace"
sketch14.addGeometry([
    Part.LineSegment(Vector(-39.78, 14.92, 0), Vector(-39.78, 19.15, 0)),
    Part.LineSegment(Vector(-39.78, 19.15, 0), Vector(-39.38, 19.15, 0)),
    Part.LineSegment(Vector(-39.38, 19.15, 0), Vector(-39.38, 14.92, 0)),
    Part.LineSegment(Vector(-39.38, 14.92, 0), Vector(-39.78, 14.92, 0)),
], False)
sketch14.addConstraint([
    Sketcher.Constraint("Coincident", 0, 2, 1, 1),
    Sketcher.Constraint("Coincident", 1, 2, 2, 1),
    Sketcher.Constraint("Coincident", 2, 2, 3, 1),
    Sketcher.Constraint("Coincident", 3, 2, 0, 1),
    Sketcher.Constraint("Vertical", 0),
    Sketcher.Constraint("Horizontal", 1),
    Sketcher.Constraint("Vertical", 2),
    Sketcher.Constraint("Horizontal", 3),
    Sketcher.Constraint("DistanceX", 1, 1, 1, 2, Q("0.4 mm")),
    Sketcher.Constraint("DistanceY", 0, 1, 0, 2, Q("4.232283 mm")),
    Sketcher.Constraint("DistanceY", -1, 1, 2, 2, Q("14.919451 mm")),
    Sketcher.Constraint("DistanceX", 0, 2, -1, 1, Q("39.781526 mm")),
])
pad14 = doc.addObject("PartDesign::Pad", "Pad013")
body14.addObject(pad14)
pad14.Profile = sketch14
pad14.Length = 0.2
pad14.Reversed = True
body15 = doc.addObject("PartDesign::Body", "Body014")

# Sketch on XZ plane
sketch15 = doc.addObject("Sketcher::SketchObject", "Sketch014")
body15.addObject(sketch15)
sketch15.AttachmentSupport = (doc.getObject("XZ_Plane014"), [""])
sketch15.MapMode = "FlatFace"
sketch15.addGeometry([
    Part.LineSegment(Vector(-38.93, 14.92, 0), Vector(-38.93, 19.15, 0)),
    Part.LineSegment(Vector(-38.93, 19.15, 0), Vector(-38.53, 19.15, 0)),
    Part.LineSegment(Vector(-38.53, 19.15, 0), Vector(-38.53, 14.92, 0)),
    Part.LineSegment(Vector(-38.53, 14.92, 0), Vector(-38.93, 14.92, 0)),
], False)
sketch15.addConstraint([
    Sketcher.Constraint("Coincident", 0, 2, 1, 1),
    Sketcher.Constraint("Coincident", 1, 2, 2, 1),
    Sketcher.Constraint("Coincident", 2, 2, 3, 1),
    Sketcher.Constraint("Coincident", 3, 2, 0, 1),
    Sketcher.Constraint("Vertical", 0),
    Sketcher.Constraint("Horizontal", 1),
    Sketcher.Constraint("Vertical", 2),
    Sketcher.Constraint("Horizontal", 3),
    Sketcher.Constraint("DistanceX", 1, 1, 1, 2, Q("0.4 mm")),
    Sketcher.Constraint("DistanceY", 0, 1, 0, 2, Q("4.232283 mm")),
    Sketcher.Constraint("DistanceY", -1, 1, 2, 2, Q("14.919451 mm")),
    Sketcher.Constraint("DistanceX", 0, 2, -1, 1, Q("38.931526 mm")),
])
pad15 = doc.addObject("PartDesign::Pad", "Pad014")
body15.addObject(pad15)
pad15.Profile = sketch15
pad15.Length = 0.2
pad15.Reversed = True
body16 = doc.addObject("PartDesign::Body", "Body015")

# Sketch on XZ plane
sketch16 = doc.addObject("Sketcher::SketchObject", "Sketch015")
body16.addObject(sketch16)
sketch16.AttachmentSupport = (doc.getObject("XZ_Plane015"), [""])
sketch16.MapMode = "FlatFace"
sketch16.addGeometry([
    Part.LineSegment(Vector(-38.08, 14.92, 0), Vector(-38.08, 19.15, 0)),
    Part.LineSegment(Vector(-38.08, 19.15, 0), Vector(-37.68, 19.15, 0)),
    Part.LineSegment(Vector(-37.68, 19.15, 0), Vector(-37.68, 14.92, 0)),
    Part.LineSegment(Vector(-37.68, 14.92, 0), Vector(-38.08, 14.92, 0)),
], False)
sketch16.addConstraint([
    Sketcher.Constraint("Coincident", 0, 2, 1, 1),
    Sketcher.Constraint("Coincident", 1, 2, 2, 1),
    Sketcher.Constraint("Coincident", 2, 2, 3, 1),
    Sketcher.Constraint("Coincident", 3, 2, 0, 1),
    Sketcher.Constraint("Vertical", 0),
    Sketcher.Constraint("Horizontal", 1),
    Sketcher.Constraint("Vertical", 2),
    Sketcher.Constraint("Horizontal", 3),
    Sketcher.Constraint("DistanceX", 1, 1, 1, 2, Q("0.4 mm")),
    Sketcher.Constraint("DistanceY", 0, 1, 0, 2, Q("4.232283 mm")),
    Sketcher.Constraint("DistanceY", -1, 1, 2, 2, Q("14.919451 mm")),
    Sketcher.Constraint("DistanceX", 0, 2, -1, 1, Q("38.081526 mm")),
])
pad16 = doc.addObject("PartDesign::Pad", "Pad015")
body16.addObject(pad16)
pad16.Profile = sketch16
pad16.Length = 0.2
pad16.Reversed = True
body17 = doc.addObject("PartDesign::Body", "Body016")

# Sketch on XZ plane
sketch17 = doc.addObject("Sketcher::SketchObject", "Sketch016")
body17.addObject(sketch17)
sketch17.AttachmentSupport = (doc.getObject("XZ_Plane016"), [""])
sketch17.MapMode = "FlatFace"
sketch17.addGeometry([
    Part.LineSegment(Vector(-37.23, 14.92, 0), Vector(-37.23, 19.15, 0)),
    Part.LineSegment(Vector(-37.23, 19.15, 0), Vector(-36.83, 19.15, 0)),
    Part.LineSegment(Vector(-36.83, 19.15, 0), Vector(-36.83, 14.92, 0)),
    Part.LineSegment(Vector(-36.83, 14.92, 0), Vector(-37.23, 14.92, 0)),
], False)
sketch17.addConstraint([
    Sketcher.Constraint("Coincident", 0, 2, 1, 1),
    Sketcher.Constraint("Coincident", 1, 2, 2, 1),
    Sketcher.Constraint("Coincident", 2, 2, 3, 1),
    Sketcher.Constraint("Coincident", 3, 2, 0, 1),
    Sketcher.Constraint("Vertical", 0),
    Sketcher.Constraint("Horizontal", 1),
    Sketcher.Constraint("Vertical", 2),
    Sketcher.Constraint("Horizontal", 3),
    Sketcher.Constraint("DistanceX", 1, 1, 1, 2, Q("0.4 mm")),
    Sketcher.Constraint("DistanceY", 0, 1, 0, 2, Q("4.232283 mm")),
    Sketcher.Constraint("DistanceY", -1, 1, 2, 2, Q("14.919451 mm")),
    Sketcher.Constraint("DistanceX", 0, 2, -1, 1, Q("37.231526 mm")),
])
pad17 = doc.addObject("PartDesign::Pad", "Pad016")
body17.addObject(pad17)
pad17.Profile = sketch17
pad17.Length = 0.2
pad17.Reversed = True

doc.recompute()
